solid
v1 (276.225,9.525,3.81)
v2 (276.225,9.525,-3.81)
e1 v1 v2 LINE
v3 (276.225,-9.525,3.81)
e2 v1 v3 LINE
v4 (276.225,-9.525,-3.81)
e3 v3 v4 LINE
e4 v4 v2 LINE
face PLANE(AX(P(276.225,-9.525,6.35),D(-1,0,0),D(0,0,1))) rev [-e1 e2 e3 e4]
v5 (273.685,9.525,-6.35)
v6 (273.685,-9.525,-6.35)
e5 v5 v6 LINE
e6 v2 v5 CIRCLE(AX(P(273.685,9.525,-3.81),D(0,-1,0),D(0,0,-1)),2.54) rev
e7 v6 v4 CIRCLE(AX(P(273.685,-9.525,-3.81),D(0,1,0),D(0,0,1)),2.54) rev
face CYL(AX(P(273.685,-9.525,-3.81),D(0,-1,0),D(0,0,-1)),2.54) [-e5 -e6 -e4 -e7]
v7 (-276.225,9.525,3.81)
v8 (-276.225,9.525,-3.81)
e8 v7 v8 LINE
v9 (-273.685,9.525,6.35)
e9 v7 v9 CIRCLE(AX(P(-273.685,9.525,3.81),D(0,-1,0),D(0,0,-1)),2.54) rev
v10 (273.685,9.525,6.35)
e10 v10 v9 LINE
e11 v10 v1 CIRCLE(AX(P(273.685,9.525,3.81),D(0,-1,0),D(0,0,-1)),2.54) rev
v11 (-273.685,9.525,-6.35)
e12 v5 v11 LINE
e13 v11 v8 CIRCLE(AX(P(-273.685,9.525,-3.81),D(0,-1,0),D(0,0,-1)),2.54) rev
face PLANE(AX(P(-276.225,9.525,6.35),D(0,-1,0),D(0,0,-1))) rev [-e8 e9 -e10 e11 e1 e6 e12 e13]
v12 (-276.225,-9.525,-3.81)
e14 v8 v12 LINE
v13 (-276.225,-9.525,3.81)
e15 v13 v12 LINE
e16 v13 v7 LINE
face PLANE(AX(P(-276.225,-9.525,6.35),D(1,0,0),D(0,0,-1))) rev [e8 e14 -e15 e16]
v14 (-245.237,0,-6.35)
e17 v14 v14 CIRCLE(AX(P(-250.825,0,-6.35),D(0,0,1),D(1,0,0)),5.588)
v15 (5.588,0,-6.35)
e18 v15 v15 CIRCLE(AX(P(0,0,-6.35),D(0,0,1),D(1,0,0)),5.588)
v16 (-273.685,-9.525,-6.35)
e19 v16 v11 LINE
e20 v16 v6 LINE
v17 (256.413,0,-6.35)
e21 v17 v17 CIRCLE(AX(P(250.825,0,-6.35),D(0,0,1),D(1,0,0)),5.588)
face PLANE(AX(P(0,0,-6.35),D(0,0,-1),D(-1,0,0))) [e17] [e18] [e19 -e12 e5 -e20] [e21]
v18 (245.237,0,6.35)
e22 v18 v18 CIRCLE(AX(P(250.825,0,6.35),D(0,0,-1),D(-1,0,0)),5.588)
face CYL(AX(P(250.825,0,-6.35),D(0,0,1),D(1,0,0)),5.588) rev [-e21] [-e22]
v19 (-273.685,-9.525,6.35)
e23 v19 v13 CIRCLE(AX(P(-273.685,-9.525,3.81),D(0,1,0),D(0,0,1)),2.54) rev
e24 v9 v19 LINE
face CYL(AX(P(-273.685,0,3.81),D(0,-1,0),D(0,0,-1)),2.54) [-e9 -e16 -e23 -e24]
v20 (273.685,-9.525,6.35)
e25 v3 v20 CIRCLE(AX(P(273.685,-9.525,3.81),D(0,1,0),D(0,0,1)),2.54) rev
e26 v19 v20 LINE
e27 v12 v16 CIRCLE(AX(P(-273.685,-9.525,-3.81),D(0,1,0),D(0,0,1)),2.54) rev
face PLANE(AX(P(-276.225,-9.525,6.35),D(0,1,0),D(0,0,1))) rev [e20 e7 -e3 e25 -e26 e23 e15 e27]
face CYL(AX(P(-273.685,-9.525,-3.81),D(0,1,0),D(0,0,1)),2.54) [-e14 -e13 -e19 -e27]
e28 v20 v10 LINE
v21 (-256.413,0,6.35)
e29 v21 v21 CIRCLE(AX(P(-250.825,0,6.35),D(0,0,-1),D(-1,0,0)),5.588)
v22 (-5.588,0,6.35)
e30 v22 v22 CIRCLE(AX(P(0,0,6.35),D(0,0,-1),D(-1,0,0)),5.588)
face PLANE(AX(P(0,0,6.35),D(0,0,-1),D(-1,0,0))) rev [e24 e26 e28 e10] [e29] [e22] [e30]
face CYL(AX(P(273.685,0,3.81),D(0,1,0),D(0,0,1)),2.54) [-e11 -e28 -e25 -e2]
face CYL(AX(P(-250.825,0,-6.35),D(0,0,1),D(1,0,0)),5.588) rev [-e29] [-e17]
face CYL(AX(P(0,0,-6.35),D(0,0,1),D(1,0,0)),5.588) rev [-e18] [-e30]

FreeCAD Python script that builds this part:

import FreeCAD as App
import Part
import Sketcher
from FreeCAD import Vector
Q = App.Units.Quantity


def edges_at(feature, points):
    """Names of the edges that pass closest to the given points."""
    edges = feature.Shape.Edges
    near = lambda p: min(range(len(edges)), key=lambda i: edges[i].distToShape(Part.Vertex(*p))[0])
    return sorted({f"Edge{near(p) + 1}" for p in points})


def add_polygon(sketch, points):
    """Adds a closed chain of lines whose ends are joined by coincident constraints."""
    first, n = sketch.GeometryCount, len(points)
    for a, b in zip(points, points[1:] + points[:1]):
        sketch.addGeometry(Part.LineSegment(App.Vector(*a, 0), App.Vector(*b, 0)), False)
    for i in range(n):
        sketch.addConstraint(Sketcher.Constraint("Coincident", first + i, 2, first + (i + 1) % n, 1))

doc = App.newDocument("Part")
params = doc.addObject("Spreadsheet::Sheet", "Params")
for row, (alias, value) in enumerate([
    ("sketch1_width", "21.75 in"),
    ("sketch1_height", "0.75 in"),
    ("pad1_length", "0.5 in"),
    ("sketch2_diameter", "0.44 in"),
    ("fillet_radius", "0.1 in"),
], start=1):
    params.set(f"A{row}", alias)
    params.set(f"B{row}", "=" + value)
    params.setAlias(f"B{row}", alias)

body = doc.addObject("PartDesign::Body", "Body")

# Sketch on XY plane
sketch1 = doc.addObject("Sketcher::SketchObject", "Sketch")
body.addObject(sketch1)
sketch1.AttachmentSupport = (doc.XY_Plane, [""])
sketch1.MapMode = "FlatFace"
add_polygon(sketch1, [(-276, 10), (-276, -10), (276, -10), (276, 10)])  # lines 0-3
sketch1.addConstraint(Sketcher.Constraint("Vertical", 0))
sketch1.addConstraint(Sketcher.Constraint("Horizontal", 1))
sketch1.addConstraint(Sketcher.Constraint("Vertical", 2))
sketch1.addConstraint(Sketcher.Constraint("Horizontal", 3))
sketch1.addConstraint(Sketcher.Constraint("Symmetric", 0, 2, 2, 2, -1, 1))
sketch1.addConstraint(Sketcher.Constraint("DistanceX", 1, 1, 1, 2, Q("21.75 in")))
sketch1.addConstraint(Sketcher.Constraint("DistanceY", 0, 2, 0, 1, Q("0.75 in")))
sketch1.setExpression("Constraints[9]", "Params.sketch1_width")
sketch1.setExpression("Constraints[10]", "Params.sketch1_height")
pad1 = doc.addObject("PartDesign::Pad", "Pad")
body.addObject(pad1)
pad1.Profile = sketch1
pad1.setExpression("Length", "Params.pad1_length")
pad1.Midplane = True

# Sketch on XY plane
sketch2 = doc.addObject("Sketcher::SketchObject", "Sketch001")
body.addObject(sketch2)
sketch2.AttachmentSupport = (doc.XY_Plane, [""])
sketch2.MapMode = "FlatFace"
sketch2.AttachmentOffset = App.Placement(Vector(0, 0, 0.25 * 25.4), App.Rotation())
sketch2.addGeometry(Part.Circle(Vector(0, 0, 0), Vector(0, 0, 1), 6), False)
sketch2.addGeometry(Part.Circle(Vector(251, 0, 0), Vector(0, 0, 1), 6), False)
sketch2.addGeometry(Part.Circle(Vector(-251, 0, 0), Vector(0, 0, 1), 6), False)
sketch2.addConstraint(Sketcher.Constraint("Coincident", 0, 3, -1, 1))
sketch2.addConstraint(Sketcher.Constraint("Equal", 0, 1))
sketch2.addConstraint(Sketcher.Constraint("Equal", 1, 2))
sketch2.addConstraint(Sketcher.Constraint("Symmetric", 1, 3, 2, 3, -1, 1))
sketch2.addConstraint(Sketcher.Constraint("PointOnObject", 1, 3, -1))
sketch2.addConstraint(Sketcher.Constraint("Diameter", 0, Q("0.44 in")))
sketch2.addConstraint(Sketcher.Constraint("DistanceX", 2, 3, 1, 3, Q("19.75 in")))
sketch2.setExpression("Constraints[5]", "Params.sketch2_diameter")
pocket1 = doc.addObject("PartDesign::Pocket", "Pocket")
body.addObject(pocket1)
pocket1.Profile = sketch2
pocket1.Type = "ThroughAll"
pocket1.Midplane = True
doc.recompute()

fillet = doc.addObject("PartDesign::Fillet", "Fillet")
body.addObject(fillet)
fillet.Base = (pocket1, edges_at(pocket1, [
    (-276.225, 0, 6.35),
    (276.225, 0, 6.35),
    (-276.225, 0, -6.35),
    (276.225, 0, -6.35),
]))
fillet.setExpression("Radius", "Params.fillet_radius")

doc.recompute()
